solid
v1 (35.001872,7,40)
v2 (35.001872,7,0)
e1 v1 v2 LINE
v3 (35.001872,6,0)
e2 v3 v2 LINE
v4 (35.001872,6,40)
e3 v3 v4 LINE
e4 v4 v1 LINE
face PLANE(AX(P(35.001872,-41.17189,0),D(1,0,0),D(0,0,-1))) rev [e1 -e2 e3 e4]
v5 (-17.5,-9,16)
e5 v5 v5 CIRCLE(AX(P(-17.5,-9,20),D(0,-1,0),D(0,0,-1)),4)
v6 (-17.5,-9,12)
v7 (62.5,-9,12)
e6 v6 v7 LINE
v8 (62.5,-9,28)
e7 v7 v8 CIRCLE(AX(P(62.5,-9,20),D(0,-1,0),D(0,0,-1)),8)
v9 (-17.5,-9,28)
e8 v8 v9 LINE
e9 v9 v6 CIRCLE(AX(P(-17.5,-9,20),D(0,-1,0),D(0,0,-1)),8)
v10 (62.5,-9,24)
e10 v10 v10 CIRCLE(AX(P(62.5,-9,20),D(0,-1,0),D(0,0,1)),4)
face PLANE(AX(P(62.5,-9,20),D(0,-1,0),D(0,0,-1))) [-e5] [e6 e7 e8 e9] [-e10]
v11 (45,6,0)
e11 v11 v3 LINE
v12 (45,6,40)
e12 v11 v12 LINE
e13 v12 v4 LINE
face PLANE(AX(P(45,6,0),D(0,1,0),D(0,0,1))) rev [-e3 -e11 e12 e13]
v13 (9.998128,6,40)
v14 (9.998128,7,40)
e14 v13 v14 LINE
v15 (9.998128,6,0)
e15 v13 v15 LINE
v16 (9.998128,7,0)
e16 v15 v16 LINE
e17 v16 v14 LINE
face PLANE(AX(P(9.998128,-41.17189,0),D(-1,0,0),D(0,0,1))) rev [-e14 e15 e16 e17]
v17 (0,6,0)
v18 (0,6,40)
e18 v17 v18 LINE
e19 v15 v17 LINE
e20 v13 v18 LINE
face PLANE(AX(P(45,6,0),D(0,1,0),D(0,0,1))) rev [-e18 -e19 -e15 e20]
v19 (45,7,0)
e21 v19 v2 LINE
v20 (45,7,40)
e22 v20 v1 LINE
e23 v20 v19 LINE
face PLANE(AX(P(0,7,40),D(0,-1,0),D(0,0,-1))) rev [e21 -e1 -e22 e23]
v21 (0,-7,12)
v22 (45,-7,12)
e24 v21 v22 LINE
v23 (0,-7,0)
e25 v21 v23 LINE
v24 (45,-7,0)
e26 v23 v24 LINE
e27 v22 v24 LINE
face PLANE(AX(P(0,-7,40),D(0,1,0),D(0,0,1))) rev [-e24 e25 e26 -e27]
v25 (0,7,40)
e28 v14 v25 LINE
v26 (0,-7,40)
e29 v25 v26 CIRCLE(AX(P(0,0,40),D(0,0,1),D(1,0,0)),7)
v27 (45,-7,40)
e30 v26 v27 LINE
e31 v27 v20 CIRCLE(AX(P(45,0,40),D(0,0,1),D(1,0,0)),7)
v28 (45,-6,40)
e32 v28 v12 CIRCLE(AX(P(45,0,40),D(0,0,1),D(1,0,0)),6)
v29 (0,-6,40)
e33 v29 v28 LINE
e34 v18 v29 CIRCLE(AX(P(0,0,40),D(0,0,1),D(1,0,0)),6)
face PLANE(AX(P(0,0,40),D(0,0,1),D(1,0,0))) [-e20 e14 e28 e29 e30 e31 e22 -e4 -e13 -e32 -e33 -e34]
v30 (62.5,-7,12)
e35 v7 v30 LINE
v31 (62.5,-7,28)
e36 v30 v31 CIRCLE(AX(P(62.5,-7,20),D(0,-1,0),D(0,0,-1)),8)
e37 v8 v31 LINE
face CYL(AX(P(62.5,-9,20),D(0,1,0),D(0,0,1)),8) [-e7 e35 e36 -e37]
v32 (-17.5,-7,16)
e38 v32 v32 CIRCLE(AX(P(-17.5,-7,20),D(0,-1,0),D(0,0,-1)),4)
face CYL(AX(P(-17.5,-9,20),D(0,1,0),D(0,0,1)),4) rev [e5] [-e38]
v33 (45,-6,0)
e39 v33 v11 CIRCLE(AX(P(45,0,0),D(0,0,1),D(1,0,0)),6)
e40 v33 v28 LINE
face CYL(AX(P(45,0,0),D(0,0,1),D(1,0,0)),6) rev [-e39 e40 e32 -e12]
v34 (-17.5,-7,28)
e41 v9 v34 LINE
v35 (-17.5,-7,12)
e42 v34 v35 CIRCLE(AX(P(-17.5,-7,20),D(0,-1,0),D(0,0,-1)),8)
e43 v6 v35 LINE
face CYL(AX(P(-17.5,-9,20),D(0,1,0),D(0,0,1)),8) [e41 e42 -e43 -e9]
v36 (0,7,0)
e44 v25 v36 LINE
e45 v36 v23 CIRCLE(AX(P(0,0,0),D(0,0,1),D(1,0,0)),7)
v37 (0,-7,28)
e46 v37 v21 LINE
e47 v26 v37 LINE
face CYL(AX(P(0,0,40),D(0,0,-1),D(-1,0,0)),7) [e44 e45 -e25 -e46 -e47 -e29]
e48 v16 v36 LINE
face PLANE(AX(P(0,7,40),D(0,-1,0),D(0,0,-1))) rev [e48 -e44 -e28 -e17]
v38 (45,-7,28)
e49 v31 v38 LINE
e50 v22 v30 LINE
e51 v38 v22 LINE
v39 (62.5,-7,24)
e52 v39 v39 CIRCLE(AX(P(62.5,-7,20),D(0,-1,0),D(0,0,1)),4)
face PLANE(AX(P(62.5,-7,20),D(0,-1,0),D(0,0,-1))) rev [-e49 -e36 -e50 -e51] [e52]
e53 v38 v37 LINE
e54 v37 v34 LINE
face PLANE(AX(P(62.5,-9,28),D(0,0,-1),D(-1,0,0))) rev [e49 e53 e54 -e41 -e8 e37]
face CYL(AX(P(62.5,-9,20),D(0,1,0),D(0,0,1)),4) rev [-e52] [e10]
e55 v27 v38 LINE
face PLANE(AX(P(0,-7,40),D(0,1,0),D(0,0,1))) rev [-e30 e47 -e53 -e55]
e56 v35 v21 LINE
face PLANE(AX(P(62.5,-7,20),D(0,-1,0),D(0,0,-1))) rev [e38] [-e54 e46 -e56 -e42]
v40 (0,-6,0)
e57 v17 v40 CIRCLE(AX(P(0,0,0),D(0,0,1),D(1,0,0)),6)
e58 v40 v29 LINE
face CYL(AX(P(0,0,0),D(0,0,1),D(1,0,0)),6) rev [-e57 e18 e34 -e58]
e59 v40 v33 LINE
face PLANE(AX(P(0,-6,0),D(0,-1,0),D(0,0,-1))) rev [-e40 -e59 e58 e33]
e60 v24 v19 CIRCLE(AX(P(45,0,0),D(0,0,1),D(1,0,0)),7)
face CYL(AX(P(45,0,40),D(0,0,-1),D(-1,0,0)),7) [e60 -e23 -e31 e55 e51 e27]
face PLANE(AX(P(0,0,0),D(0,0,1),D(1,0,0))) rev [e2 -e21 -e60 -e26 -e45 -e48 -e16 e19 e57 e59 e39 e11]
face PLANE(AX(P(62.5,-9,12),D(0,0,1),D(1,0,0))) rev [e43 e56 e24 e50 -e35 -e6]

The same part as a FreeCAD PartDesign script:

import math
import FreeCAD as App
import Part
import Sketcher
from FreeCAD import Vector


def add_polygon(sketch, points):
    """Adds a closed chain of lines whose ends are joined by coincident constraints."""
    first, n = sketch.GeometryCount, len(points)
    for a, b in zip(points, points[1:] + points[:1]):
        sketch.addGeometry(Part.LineSegment(App.Vector(*a, 0), App.Vector(*b, 0)), False)
    for i in range(n):
        sketch.addConstraint(Sketcher.Constraint("Coincident", first + i, 2, first + (i + 1) % n, 1))

doc = App.newDocument("Part")
body = doc.addObject("PartDesign::Body", "Body")

sketch1 = body.newObject("Sketcher::SketchObject", "Sketch")
sketch1.AttachmentSupport = (doc.getObject("XY_Plane"), [""])
sketch1.MapMode = "FlatFace"
sketch1.addGeometry([
    Part.LineSegment(Vector(45, 7, 0), Vector(0, 7, 0)),
    Part.ArcOfCircle(Part.Circle(Vector(0, 0, 0), Vector(0, 0, 1), 7), math.radians(90), math.radians(270)),
    Part.LineSegment(Vector(0, -7, 0), Vector(45, -7, 0)),
    Part.ArcOfCircle(Part.Circle(Vector(45, 0, 0), Vector(0, 0, 1), 7), math.radians(-90), math.radians(90)),
], False)
sketch1.addConstraint([
    Sketcher.Constraint("Tangent", 0, 2, 1, 1),
    Sketcher.Constraint("Tangent", 1, 2, 2, 1),
    Sketcher.Constraint("Tangent", 2, 2, 3, 1),
    Sketcher.Constraint("Tangent", 3, 2, 0, 1),
    Sketcher.Constraint("Horizontal", 0),
    Sketcher.Constraint("Horizontal", 2),
    Sketcher.Constraint("Coincident", 1, 3, -1, 1),
    Sketcher.Constraint("Radius", 1, 7.0),
    Sketcher.Constraint("DistanceX", 0, 2, 0, 1, 45.0),
])
pad1 = body.newObject("PartDesign::Pad", "Pad")
pad1.Profile = sketch1
pad1.Length = 40

sketch2 = body.newObject("Sketcher::SketchObject", "Sketch001")
sketch2.AttachmentSupport = (doc.getObject("XY_Plane"), [""])
sketch2.MapMode = "FlatFace"
sketch2.AttachmentOffset = App.Placement(Vector(0, 0, 40), App.Rotation())
sketch2.addGeometry([
    Part.LineSegment(Vector(0, -6, 0), Vector(45, -6, 0)),
    Part.ArcOfCircle(Part.Circle(Vector(45, 0, 0), Vector(0, 0, 1), 6), math.radians(-90), math.radians(90)),
    Part.LineSegment(Vector(45, 6, 0), Vector(0, 6, 0)),
    Part.ArcOfCircle(Part.Circle(Vector(0, 0, 0), Vector(0, 0, 1), 6), math.radians(90), math.radians(270)),
], False)
sketch2.addConstraint([
    Sketcher.Constraint("Tangent", 0, 2, 1, 1),
    Sketcher.Constraint("Tangent", 1, 2, 2, 1),
    Sketcher.Constraint("Tangent", 2, 2, 3, 1),
    Sketcher.Constraint("Tangent", 3, 2, 0, 1),
    Sketcher.Constraint("Horizontal", 0),
    Sketcher.Constraint("Horizontal", 2),
    Sketcher.Constraint("Coincident", 3, 3, -1, 1),
    Sketcher.Constraint("Radius", 1, 6.0),
    Sketcher.Constraint("DistanceX", 0, 1, 0, 2, 45.0),
])
pocket1 = body.newObject("PartDesign::Pocket", "Pocket")
pocket1.Profile = sketch2
pocket1.Type = "ThroughAll"

sketch3 = body.newObject("Sketcher::SketchObject", "Sketch002")
sketch3.AttachmentSupport = (doc.getObject("XZ_Plane"), [""])
sketch3.MapMode = "FlatFace"
sketch3.AttachmentOffset = App.Placement(Vector(0, 0, -7), App.Rotation())
add_polygon(sketch3, [(10, 0), (10, 40), (35, 40), (35, 0)])
sketch3.addConstraint([
    Sketcher.Constraint("Vertical", 0),
    Sketcher.Constraint("Horizontal", 1),
    Sketcher.Constraint("Vertical", 2),
    Sketcher.Constraint("Horizontal", 3),
    Sketcher.Constraint("PointOnObject", 2, 2, -1),
    Sketcher.Constraint("DistanceY", 0, 1, 0, 2, 40.0),
    Sketcher.Constraint("DistanceX", 1, 1, 1, 2, 25.003743),
    Sketcher.Constraint("DistanceX", -1, 1, 0, 2, 9.998128),
])
pocket2 = body.newObject("PartDesign::Pocket", "Pocket001")
pocket2.Profile = sketch3
pocket2.Length = 1
pocket2.Reversed = True

sketch4 = body.newObject("Sketcher::SketchObject", "Sketch003")
sketch4.AttachmentSupport = (doc.getObject("XZ_Plane"), [""])
sketch4.MapMode = "FlatFace"
sketch4.AttachmentOffset = App.Placement(Vector(0, 0, 7), App.Rotation())
sketch4.addGeometry([
    Part.LineSegment(Vector(-17.5, 12, 0), Vector(62.5, 12, 0)),
    Part.ArcOfCircle(Part.Circle(Vector(62.5, 20, 0), Vector(0, 0, 1), 8), math.radians(-90), math.radians(90)),
    Part.LineSegment(Vector(62.5, 28, 0), Vector(-17.5, 28, 0)),
    Part.ArcOfCircle(Part.Circle(Vector(-17.5, 20, 0), Vector(0, 0, 1), 8), math.radians(90), math.radians(270)),
    Part.Circle(Vector(-17.5, 20, 0), Vector(0, 0, 1), 4),
    Part.Circle(Vector(62.5, 20, 0), Vector(0, 0, 1), 4),
], False)
sketch4.addConstraint([
    Sketcher.Constraint("Tangent", 0, 2, 1, 1),
    Sketcher.Constraint("Tangent", 1, 2, 2, 1),
    Sketcher.Constraint("Tangent", 2, 2, 3, 1),
    Sketcher.Constraint("Tangent", 3, 2, 0, 1),
    Sketcher.Constraint("Horizontal", 0),
    Sketcher.Constraint("Horizontal", 2),
    Sketcher.Constraint("Coincident", 4, 3, 3, 3),
    Sketcher.Constraint("Coincident", 5, 3, 1, 3),
    Sketcher.Constraint("Equal", 4, 5),
    Sketcher.Constraint("Diameter", 4, 8.0),
    Sketcher.Constraint("Radius", 1, 8.0),
    Sketcher.Constraint("DistanceX", 0, 1, 0, 2, 80.0),
    Sketcher.Constraint("DistanceY", -1, 1, 1, 3, 20.0),
    Sketcher.Constraint("DistanceX", -1, 1, 1, 3, 62.5),
])
pad2 = body.newObject("PartDesign::Pad", "Pad001")
pad2.Profile = sketch4
pad2.Length = 2

doc.recompute()
